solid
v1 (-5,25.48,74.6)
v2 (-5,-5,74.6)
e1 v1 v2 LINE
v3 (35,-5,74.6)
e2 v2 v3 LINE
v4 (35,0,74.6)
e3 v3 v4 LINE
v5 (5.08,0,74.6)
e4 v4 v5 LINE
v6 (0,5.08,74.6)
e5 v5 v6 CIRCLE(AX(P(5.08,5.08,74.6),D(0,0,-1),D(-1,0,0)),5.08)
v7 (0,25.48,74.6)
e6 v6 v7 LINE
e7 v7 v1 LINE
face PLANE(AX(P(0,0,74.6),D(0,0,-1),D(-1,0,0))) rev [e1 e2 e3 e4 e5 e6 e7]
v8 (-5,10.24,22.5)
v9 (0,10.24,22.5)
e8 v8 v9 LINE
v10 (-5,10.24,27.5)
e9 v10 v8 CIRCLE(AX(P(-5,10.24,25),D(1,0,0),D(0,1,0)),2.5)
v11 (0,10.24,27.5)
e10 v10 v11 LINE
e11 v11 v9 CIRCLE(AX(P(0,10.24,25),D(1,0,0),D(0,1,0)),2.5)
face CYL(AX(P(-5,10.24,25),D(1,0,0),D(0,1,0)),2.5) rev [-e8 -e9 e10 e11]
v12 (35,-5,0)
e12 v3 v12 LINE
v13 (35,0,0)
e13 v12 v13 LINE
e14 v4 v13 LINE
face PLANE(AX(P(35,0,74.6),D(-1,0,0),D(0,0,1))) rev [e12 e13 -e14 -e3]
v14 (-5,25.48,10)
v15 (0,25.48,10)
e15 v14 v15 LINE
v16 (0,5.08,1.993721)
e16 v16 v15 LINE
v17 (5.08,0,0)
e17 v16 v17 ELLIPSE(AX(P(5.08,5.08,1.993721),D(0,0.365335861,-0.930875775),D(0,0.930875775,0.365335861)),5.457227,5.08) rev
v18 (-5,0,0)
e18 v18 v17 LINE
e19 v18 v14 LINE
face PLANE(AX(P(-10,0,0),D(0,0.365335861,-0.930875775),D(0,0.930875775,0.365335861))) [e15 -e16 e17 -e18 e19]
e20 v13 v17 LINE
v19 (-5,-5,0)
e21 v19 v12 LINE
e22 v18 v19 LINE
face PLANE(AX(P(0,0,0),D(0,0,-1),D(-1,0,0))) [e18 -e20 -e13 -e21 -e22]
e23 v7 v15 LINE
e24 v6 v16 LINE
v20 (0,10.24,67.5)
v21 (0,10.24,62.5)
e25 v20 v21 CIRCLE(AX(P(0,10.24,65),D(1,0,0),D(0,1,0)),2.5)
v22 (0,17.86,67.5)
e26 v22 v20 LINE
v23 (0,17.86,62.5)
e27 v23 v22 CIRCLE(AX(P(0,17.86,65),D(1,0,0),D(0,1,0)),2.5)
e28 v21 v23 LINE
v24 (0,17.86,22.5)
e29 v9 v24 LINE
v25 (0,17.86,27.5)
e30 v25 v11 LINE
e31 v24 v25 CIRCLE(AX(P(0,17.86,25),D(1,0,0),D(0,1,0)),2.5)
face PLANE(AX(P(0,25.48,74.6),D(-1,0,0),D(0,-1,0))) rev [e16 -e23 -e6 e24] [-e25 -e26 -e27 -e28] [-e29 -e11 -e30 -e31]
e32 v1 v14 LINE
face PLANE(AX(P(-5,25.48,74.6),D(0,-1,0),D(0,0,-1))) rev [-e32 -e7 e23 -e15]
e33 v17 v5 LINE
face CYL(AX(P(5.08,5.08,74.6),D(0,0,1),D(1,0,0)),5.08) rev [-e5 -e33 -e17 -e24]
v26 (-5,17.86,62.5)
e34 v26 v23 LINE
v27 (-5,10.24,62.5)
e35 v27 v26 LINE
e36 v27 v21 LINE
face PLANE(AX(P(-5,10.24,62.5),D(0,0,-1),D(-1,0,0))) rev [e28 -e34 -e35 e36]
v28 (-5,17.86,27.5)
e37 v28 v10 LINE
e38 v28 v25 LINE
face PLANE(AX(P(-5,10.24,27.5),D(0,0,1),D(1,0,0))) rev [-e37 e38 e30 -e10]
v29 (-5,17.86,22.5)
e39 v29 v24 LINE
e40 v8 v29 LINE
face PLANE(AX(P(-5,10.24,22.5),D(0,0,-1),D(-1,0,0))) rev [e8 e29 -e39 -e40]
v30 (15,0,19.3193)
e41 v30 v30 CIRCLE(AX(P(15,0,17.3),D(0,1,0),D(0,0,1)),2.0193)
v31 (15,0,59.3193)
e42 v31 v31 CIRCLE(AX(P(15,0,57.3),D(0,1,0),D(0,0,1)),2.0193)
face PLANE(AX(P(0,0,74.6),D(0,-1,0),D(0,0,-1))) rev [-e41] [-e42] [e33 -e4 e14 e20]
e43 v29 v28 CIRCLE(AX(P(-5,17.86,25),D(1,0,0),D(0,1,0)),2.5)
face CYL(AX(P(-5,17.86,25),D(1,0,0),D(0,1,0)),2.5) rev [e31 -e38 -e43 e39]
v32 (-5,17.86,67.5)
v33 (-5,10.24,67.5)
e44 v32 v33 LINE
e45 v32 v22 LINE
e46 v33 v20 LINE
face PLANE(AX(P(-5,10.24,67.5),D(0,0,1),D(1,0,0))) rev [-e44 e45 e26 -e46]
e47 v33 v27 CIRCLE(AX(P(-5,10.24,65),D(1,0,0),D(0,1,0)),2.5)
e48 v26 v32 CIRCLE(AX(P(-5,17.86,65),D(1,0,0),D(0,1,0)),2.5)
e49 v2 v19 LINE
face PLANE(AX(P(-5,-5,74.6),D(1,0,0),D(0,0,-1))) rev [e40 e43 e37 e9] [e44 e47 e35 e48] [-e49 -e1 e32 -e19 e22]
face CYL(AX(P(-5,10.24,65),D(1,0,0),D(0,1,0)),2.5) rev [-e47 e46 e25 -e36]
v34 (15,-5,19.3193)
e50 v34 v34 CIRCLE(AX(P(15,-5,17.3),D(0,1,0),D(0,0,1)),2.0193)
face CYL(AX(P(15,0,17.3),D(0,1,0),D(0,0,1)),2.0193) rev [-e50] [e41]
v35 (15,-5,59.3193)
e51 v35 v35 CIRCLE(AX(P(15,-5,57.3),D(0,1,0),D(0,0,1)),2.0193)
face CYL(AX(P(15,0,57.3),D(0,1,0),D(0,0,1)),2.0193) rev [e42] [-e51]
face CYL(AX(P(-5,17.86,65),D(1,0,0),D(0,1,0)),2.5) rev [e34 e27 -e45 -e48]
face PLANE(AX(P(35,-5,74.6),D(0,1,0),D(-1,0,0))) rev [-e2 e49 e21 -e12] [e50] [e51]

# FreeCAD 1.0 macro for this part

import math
import FreeCAD as App
import Part
import Sketcher

V = App.Vector


def edges_at(feature, points):
    """Names of the edges that pass closest to the given points."""
    edges = feature.Shape.Edges
    near = lambda p: min(range(len(edges)), key=lambda i: edges[i].distToShape(Part.Vertex(*p))[0])
    return sorted({f"Edge{near(p) + 1}" for p in points})

doc = App.newDocument("Part")
body = doc.addObject("PartDesign::Body", "Body")

# Sketch on XY plane
sketch1 = body.newObject("Sketcher::SketchObject", "Sketch")
sketch1.AttachmentSupport = (doc.getObject("XY_Plane"), [""])
sketch1.MapMode = "FlatFace"
sketch1.addGeometry(Part.LineSegment(V(0, 0, 0), V(0, 25.48, 0)), False)
sketch1.addGeometry(Part.LineSegment(V(0, 25.48, 0), V(-5, 25.48, 0)), False)
sketch1.addGeometry(Part.LineSegment(V(-5, 25.48, 0), V(-5, -5, 0)), False)
sketch1.addGeometry(Part.LineSegment(V(-5, -5, 0), V(35, -5, 0)), False)
sketch1.addGeometry(Part.LineSegment(V(35, -5, 0), V(35, 0, 0)), False)
sketch1.addGeometry(Part.LineSegment(V(35, 0, 0), V(0, 0, 0)), False)
sketch1.addConstraint(Sketcher.Constraint("Coincident", 0, 2, 1, 1))
sketch1.addConstraint(Sketcher.Constraint("Coincident", 1, 2, 2, 1))
sketch1.addConstraint(Sketcher.Constraint("Coincident", 2, 2, 3, 1))
sketch1.addConstraint(Sketcher.Constraint("Coincident", 3, 2, 4, 1))
sketch1.addConstraint(Sketcher.Constraint("Coincident", 4, 2, 5, 1))
sketch1.addConstraint(Sketcher.Constraint("Coincident", 5, 2, 0, 1))
sketch1.addConstraint(Sketcher.Constraint("Vertical", 0))
sketch1.addConstraint(Sketcher.Constraint("Horizontal", 1))
sketch1.addConstraint(Sketcher.Constraint("Vertical", 2))
sketch1.addConstraint(Sketcher.Constraint("Horizontal", 3))
sketch1.addConstraint(Sketcher.Constraint("Vertical", 4))
sketch1.addConstraint(Sketcher.Constraint("Horizontal", 5))
sketch1.addConstraint(Sketcher.Constraint("Coincident", 5, 2, -1, 1))
sketch1.addConstraint(Sketcher.Constraint("Equal", 1, 4))
sketch1.addConstraint(Sketcher.Constraint("DistanceX", 1, 2, 1, 1, 5.0))
sketch1.addConstraint(Sketcher.Constraint("DistanceX", 3, 1, 3, 2, 40.0))
sketch1.addConstraint(Sketcher.Constraint("DistanceY", 0, 1, 0, 2, 25.48))
pad1 = body.newObject("PartDesign::Pad", "Pad")
pad1.Profile = sketch1
pad1.Length = 74.6

# Sketch on YZ plane
sketch2 = body.newObject("Sketcher::SketchObject", "Sketch001")
sketch2.AttachmentSupport = (doc.getObject("YZ_Plane"), [""])
sketch2.MapMode = "FlatFace"
sketch2.addGeometry(Part.LineSegment(V(17.86, 67.5, 0), V(10.24, 67.5, 0)), False)
sketch2.addGeometry(Part.ArcOfCircle(Part.Circle(V(10.24, 65, 0), V(0, 0, 1), 2.5), math.radians(90), math.radians(270)), False)
sketch2.addGeometry(Part.LineSegment(V(10.24, 62.5, 0), V(17.86, 62.5, 0)), False)
sketch2.addGeometry(Part.ArcOfCircle(Part.Circle(V(17.86, 65, 0), V(0, 0, 1), 2.5), math.radians(-90), math.radians(90)), False)
sketch2.addGeometry(Part.LineSegment(V(17.86, 27.5, 0), V(10.24, 27.5, 0)), False)
sketch2.addGeometry(Part.ArcOfCircle(Part.Circle(V(10.24, 25, 0), V(0, 0, 1), 2.5), math.radians(90), math.radians(270)), False)
sketch2.addGeometry(Part.LineSegment(V(10.24, 22.5, 0), V(17.86, 22.5, 0)), False)
sketch2.addGeometry(Part.ArcOfCircle(Part.Circle(V(17.86, 25, 0), V(0, 0, 1), 2.5), math.radians(-90), math.radians(90)), False)
sketch2.addConstraint(Sketcher.Constraint("Tangent", 0, 2, 1, 1))
sketch2.addConstraint(Sketcher.Constraint("Tangent", 1, 2, 2, 1))
sketch2.addConstraint(Sketcher.Constraint("Tangent", 2, 2, 3, 1))
sketch2.addConstraint(Sketcher.Constraint("Tangent", 3, 2, 0, 1))
sketch2.addConstraint(Sketcher.Constraint("Tangent", 4, 2, 5, 1))
sketch2.addConstraint(Sketcher.Constraint("Tangent", 5, 2, 6, 1))
sketch2.addConstraint(Sketcher.Constraint("Tangent", 6, 2, 7, 1))
sketch2.addConstraint(Sketcher.Constraint("Tangent", 7, 2, 4, 1))
sketch2.addConstraint(Sketcher.Constraint("Horizontal", 0))
sketch2.addConstraint(Sketcher.Constraint("Horizontal", 2))
sketch2.addConstraint(Sketcher.Constraint("Horizontal", 4))
sketch2.addConstraint(Sketcher.Constraint("Horizontal", 6))
sketch2.addConstraint(Sketcher.Constraint("Equal", 3, 5))
sketch2.addConstraint(Sketcher.Constraint("Vertical", 1, 3, 5, 3))
sketch2.addConstraint(Sketcher.Constraint("Vertical", 3, 3, 7, 3))
sketch2.addConstraint(Sketcher.Constraint("Radius", 1, 2.5))
sketch2.addConstraint(Sketcher.Constraint("DistanceY", -1, 1, 1, 3, 65.0))
sketch2.addConstraint(Sketcher.Constraint("DistanceY", -1, 1, 5, 3, 25.0))
sketch2.addConstraint(Sketcher.Constraint("DistanceX", 0, 2, 0, 1, 7.62))
sketch2.addConstraint(Sketcher.Constraint("DistanceX", -1, 1, 1, 3, 10.24))
pocket1 = body.newObject("PartDesign::Pocket", "Pocket")
pocket1.Profile = sketch2
pocket1.Type = "ThroughAll"

# Sketch on YZ plane
sketch3 = body.newObject("Sketcher::SketchObject", "Sketch002")
sketch3.AttachmentSupport = (doc.getObject("YZ_Plane"), [""])
sketch3.MapMode = "FlatFace"
sketch3.addGeometry(Part.LineSegment(V(25.48, 10, 0), V(0, 0, 0)), False)
sketch3.addGeometry(Part.LineSegment(V(0, 0, 0), V(25.48, 0, 0)), False)
sketch3.addGeometry(Part.LineSegment(V(25.48, 0, 0), V(25.48, 10, 0)), False)
sketch3.addConstraint(Sketcher.Constraint("Coincident", 0, 2, 1, 1))
sketch3.addConstraint(Sketcher.Constraint("Coincident", 1, 2, 2, 1))
sketch3.addConstraint(Sketcher.Constraint("Coincident", 2, 2, 0, 1))
sketch3.addConstraint(Sketcher.Constraint("Horizontal", 1))
sketch3.addConstraint(Sketcher.Constraint("Vertical", 2))
sketch3.addConstraint(Sketcher.Constraint("Coincident", 0, 2, -1, 1))
sketch3.addConstraint(Sketcher.Constraint("DistanceY", 2, 1, 2, 2, 10.0))
sketch3.addConstraint(Sketcher.Constraint("DistanceX", 1, 1, 1, 2, 25.48))
pocket2 = body.newObject("PartDesign::Pocket", "Pocket001")
pocket2.Profile = sketch3
pocket2.Length = 10
doc.recompute()

fillet = body.newObject("PartDesign::Fillet", "Fillet")
fillet.Base = (pocket2, edges_at(pocket2, [(0, 0, 37.3)]))
fillet.Radius = 5.08

# Sketch on XZ plane
sketch4 = body.newObject("Sketcher::SketchObject", "Sketch003")
sketch4.AttachmentSupport = (doc.getObject("XZ_Plane"), [""])
sketch4.MapMode = "FlatFace"
sketch4.addGeometry(Part.Circle(V(15, 17.3, 0), V(0, 0, 1), 2.0193), False)
sketch4.addGeometry(Part.Circle(V(15, 57.3, 0), V(0, 0, 1), 2.0193), False)
sketch4.addConstraint(Sketcher.Constraint("Equal", 0, 1))
sketch4.addConstraint(Sketcher.Constraint("Vertical", 0, 3, 1, 3))
sketch4.addConstraint(Sketcher.Constraint("DistanceX", -1, 1, 0, 3, 15.0))
sketch4.addConstraint(Sketcher.Constraint("DistanceY", 0, 3, 1, 3, 40.0))
sketch4.addConstraint(Sketcher.Constraint("Diameter", 0, 4.0386))
sketch4.addConstraint(Sketcher.Constraint("DistanceY", -1, 1, 0, 3, 17.3))
doc.recompute()
hole = body.newObject("PartDesign::Hole", "Hole")
hole.Profile = sketch4
hole.ThreadType = "None"
hole.Diameter = 4.0386
hole.DepthType = "ThroughAll"
hole.Reversed = True

doc.recompute()
